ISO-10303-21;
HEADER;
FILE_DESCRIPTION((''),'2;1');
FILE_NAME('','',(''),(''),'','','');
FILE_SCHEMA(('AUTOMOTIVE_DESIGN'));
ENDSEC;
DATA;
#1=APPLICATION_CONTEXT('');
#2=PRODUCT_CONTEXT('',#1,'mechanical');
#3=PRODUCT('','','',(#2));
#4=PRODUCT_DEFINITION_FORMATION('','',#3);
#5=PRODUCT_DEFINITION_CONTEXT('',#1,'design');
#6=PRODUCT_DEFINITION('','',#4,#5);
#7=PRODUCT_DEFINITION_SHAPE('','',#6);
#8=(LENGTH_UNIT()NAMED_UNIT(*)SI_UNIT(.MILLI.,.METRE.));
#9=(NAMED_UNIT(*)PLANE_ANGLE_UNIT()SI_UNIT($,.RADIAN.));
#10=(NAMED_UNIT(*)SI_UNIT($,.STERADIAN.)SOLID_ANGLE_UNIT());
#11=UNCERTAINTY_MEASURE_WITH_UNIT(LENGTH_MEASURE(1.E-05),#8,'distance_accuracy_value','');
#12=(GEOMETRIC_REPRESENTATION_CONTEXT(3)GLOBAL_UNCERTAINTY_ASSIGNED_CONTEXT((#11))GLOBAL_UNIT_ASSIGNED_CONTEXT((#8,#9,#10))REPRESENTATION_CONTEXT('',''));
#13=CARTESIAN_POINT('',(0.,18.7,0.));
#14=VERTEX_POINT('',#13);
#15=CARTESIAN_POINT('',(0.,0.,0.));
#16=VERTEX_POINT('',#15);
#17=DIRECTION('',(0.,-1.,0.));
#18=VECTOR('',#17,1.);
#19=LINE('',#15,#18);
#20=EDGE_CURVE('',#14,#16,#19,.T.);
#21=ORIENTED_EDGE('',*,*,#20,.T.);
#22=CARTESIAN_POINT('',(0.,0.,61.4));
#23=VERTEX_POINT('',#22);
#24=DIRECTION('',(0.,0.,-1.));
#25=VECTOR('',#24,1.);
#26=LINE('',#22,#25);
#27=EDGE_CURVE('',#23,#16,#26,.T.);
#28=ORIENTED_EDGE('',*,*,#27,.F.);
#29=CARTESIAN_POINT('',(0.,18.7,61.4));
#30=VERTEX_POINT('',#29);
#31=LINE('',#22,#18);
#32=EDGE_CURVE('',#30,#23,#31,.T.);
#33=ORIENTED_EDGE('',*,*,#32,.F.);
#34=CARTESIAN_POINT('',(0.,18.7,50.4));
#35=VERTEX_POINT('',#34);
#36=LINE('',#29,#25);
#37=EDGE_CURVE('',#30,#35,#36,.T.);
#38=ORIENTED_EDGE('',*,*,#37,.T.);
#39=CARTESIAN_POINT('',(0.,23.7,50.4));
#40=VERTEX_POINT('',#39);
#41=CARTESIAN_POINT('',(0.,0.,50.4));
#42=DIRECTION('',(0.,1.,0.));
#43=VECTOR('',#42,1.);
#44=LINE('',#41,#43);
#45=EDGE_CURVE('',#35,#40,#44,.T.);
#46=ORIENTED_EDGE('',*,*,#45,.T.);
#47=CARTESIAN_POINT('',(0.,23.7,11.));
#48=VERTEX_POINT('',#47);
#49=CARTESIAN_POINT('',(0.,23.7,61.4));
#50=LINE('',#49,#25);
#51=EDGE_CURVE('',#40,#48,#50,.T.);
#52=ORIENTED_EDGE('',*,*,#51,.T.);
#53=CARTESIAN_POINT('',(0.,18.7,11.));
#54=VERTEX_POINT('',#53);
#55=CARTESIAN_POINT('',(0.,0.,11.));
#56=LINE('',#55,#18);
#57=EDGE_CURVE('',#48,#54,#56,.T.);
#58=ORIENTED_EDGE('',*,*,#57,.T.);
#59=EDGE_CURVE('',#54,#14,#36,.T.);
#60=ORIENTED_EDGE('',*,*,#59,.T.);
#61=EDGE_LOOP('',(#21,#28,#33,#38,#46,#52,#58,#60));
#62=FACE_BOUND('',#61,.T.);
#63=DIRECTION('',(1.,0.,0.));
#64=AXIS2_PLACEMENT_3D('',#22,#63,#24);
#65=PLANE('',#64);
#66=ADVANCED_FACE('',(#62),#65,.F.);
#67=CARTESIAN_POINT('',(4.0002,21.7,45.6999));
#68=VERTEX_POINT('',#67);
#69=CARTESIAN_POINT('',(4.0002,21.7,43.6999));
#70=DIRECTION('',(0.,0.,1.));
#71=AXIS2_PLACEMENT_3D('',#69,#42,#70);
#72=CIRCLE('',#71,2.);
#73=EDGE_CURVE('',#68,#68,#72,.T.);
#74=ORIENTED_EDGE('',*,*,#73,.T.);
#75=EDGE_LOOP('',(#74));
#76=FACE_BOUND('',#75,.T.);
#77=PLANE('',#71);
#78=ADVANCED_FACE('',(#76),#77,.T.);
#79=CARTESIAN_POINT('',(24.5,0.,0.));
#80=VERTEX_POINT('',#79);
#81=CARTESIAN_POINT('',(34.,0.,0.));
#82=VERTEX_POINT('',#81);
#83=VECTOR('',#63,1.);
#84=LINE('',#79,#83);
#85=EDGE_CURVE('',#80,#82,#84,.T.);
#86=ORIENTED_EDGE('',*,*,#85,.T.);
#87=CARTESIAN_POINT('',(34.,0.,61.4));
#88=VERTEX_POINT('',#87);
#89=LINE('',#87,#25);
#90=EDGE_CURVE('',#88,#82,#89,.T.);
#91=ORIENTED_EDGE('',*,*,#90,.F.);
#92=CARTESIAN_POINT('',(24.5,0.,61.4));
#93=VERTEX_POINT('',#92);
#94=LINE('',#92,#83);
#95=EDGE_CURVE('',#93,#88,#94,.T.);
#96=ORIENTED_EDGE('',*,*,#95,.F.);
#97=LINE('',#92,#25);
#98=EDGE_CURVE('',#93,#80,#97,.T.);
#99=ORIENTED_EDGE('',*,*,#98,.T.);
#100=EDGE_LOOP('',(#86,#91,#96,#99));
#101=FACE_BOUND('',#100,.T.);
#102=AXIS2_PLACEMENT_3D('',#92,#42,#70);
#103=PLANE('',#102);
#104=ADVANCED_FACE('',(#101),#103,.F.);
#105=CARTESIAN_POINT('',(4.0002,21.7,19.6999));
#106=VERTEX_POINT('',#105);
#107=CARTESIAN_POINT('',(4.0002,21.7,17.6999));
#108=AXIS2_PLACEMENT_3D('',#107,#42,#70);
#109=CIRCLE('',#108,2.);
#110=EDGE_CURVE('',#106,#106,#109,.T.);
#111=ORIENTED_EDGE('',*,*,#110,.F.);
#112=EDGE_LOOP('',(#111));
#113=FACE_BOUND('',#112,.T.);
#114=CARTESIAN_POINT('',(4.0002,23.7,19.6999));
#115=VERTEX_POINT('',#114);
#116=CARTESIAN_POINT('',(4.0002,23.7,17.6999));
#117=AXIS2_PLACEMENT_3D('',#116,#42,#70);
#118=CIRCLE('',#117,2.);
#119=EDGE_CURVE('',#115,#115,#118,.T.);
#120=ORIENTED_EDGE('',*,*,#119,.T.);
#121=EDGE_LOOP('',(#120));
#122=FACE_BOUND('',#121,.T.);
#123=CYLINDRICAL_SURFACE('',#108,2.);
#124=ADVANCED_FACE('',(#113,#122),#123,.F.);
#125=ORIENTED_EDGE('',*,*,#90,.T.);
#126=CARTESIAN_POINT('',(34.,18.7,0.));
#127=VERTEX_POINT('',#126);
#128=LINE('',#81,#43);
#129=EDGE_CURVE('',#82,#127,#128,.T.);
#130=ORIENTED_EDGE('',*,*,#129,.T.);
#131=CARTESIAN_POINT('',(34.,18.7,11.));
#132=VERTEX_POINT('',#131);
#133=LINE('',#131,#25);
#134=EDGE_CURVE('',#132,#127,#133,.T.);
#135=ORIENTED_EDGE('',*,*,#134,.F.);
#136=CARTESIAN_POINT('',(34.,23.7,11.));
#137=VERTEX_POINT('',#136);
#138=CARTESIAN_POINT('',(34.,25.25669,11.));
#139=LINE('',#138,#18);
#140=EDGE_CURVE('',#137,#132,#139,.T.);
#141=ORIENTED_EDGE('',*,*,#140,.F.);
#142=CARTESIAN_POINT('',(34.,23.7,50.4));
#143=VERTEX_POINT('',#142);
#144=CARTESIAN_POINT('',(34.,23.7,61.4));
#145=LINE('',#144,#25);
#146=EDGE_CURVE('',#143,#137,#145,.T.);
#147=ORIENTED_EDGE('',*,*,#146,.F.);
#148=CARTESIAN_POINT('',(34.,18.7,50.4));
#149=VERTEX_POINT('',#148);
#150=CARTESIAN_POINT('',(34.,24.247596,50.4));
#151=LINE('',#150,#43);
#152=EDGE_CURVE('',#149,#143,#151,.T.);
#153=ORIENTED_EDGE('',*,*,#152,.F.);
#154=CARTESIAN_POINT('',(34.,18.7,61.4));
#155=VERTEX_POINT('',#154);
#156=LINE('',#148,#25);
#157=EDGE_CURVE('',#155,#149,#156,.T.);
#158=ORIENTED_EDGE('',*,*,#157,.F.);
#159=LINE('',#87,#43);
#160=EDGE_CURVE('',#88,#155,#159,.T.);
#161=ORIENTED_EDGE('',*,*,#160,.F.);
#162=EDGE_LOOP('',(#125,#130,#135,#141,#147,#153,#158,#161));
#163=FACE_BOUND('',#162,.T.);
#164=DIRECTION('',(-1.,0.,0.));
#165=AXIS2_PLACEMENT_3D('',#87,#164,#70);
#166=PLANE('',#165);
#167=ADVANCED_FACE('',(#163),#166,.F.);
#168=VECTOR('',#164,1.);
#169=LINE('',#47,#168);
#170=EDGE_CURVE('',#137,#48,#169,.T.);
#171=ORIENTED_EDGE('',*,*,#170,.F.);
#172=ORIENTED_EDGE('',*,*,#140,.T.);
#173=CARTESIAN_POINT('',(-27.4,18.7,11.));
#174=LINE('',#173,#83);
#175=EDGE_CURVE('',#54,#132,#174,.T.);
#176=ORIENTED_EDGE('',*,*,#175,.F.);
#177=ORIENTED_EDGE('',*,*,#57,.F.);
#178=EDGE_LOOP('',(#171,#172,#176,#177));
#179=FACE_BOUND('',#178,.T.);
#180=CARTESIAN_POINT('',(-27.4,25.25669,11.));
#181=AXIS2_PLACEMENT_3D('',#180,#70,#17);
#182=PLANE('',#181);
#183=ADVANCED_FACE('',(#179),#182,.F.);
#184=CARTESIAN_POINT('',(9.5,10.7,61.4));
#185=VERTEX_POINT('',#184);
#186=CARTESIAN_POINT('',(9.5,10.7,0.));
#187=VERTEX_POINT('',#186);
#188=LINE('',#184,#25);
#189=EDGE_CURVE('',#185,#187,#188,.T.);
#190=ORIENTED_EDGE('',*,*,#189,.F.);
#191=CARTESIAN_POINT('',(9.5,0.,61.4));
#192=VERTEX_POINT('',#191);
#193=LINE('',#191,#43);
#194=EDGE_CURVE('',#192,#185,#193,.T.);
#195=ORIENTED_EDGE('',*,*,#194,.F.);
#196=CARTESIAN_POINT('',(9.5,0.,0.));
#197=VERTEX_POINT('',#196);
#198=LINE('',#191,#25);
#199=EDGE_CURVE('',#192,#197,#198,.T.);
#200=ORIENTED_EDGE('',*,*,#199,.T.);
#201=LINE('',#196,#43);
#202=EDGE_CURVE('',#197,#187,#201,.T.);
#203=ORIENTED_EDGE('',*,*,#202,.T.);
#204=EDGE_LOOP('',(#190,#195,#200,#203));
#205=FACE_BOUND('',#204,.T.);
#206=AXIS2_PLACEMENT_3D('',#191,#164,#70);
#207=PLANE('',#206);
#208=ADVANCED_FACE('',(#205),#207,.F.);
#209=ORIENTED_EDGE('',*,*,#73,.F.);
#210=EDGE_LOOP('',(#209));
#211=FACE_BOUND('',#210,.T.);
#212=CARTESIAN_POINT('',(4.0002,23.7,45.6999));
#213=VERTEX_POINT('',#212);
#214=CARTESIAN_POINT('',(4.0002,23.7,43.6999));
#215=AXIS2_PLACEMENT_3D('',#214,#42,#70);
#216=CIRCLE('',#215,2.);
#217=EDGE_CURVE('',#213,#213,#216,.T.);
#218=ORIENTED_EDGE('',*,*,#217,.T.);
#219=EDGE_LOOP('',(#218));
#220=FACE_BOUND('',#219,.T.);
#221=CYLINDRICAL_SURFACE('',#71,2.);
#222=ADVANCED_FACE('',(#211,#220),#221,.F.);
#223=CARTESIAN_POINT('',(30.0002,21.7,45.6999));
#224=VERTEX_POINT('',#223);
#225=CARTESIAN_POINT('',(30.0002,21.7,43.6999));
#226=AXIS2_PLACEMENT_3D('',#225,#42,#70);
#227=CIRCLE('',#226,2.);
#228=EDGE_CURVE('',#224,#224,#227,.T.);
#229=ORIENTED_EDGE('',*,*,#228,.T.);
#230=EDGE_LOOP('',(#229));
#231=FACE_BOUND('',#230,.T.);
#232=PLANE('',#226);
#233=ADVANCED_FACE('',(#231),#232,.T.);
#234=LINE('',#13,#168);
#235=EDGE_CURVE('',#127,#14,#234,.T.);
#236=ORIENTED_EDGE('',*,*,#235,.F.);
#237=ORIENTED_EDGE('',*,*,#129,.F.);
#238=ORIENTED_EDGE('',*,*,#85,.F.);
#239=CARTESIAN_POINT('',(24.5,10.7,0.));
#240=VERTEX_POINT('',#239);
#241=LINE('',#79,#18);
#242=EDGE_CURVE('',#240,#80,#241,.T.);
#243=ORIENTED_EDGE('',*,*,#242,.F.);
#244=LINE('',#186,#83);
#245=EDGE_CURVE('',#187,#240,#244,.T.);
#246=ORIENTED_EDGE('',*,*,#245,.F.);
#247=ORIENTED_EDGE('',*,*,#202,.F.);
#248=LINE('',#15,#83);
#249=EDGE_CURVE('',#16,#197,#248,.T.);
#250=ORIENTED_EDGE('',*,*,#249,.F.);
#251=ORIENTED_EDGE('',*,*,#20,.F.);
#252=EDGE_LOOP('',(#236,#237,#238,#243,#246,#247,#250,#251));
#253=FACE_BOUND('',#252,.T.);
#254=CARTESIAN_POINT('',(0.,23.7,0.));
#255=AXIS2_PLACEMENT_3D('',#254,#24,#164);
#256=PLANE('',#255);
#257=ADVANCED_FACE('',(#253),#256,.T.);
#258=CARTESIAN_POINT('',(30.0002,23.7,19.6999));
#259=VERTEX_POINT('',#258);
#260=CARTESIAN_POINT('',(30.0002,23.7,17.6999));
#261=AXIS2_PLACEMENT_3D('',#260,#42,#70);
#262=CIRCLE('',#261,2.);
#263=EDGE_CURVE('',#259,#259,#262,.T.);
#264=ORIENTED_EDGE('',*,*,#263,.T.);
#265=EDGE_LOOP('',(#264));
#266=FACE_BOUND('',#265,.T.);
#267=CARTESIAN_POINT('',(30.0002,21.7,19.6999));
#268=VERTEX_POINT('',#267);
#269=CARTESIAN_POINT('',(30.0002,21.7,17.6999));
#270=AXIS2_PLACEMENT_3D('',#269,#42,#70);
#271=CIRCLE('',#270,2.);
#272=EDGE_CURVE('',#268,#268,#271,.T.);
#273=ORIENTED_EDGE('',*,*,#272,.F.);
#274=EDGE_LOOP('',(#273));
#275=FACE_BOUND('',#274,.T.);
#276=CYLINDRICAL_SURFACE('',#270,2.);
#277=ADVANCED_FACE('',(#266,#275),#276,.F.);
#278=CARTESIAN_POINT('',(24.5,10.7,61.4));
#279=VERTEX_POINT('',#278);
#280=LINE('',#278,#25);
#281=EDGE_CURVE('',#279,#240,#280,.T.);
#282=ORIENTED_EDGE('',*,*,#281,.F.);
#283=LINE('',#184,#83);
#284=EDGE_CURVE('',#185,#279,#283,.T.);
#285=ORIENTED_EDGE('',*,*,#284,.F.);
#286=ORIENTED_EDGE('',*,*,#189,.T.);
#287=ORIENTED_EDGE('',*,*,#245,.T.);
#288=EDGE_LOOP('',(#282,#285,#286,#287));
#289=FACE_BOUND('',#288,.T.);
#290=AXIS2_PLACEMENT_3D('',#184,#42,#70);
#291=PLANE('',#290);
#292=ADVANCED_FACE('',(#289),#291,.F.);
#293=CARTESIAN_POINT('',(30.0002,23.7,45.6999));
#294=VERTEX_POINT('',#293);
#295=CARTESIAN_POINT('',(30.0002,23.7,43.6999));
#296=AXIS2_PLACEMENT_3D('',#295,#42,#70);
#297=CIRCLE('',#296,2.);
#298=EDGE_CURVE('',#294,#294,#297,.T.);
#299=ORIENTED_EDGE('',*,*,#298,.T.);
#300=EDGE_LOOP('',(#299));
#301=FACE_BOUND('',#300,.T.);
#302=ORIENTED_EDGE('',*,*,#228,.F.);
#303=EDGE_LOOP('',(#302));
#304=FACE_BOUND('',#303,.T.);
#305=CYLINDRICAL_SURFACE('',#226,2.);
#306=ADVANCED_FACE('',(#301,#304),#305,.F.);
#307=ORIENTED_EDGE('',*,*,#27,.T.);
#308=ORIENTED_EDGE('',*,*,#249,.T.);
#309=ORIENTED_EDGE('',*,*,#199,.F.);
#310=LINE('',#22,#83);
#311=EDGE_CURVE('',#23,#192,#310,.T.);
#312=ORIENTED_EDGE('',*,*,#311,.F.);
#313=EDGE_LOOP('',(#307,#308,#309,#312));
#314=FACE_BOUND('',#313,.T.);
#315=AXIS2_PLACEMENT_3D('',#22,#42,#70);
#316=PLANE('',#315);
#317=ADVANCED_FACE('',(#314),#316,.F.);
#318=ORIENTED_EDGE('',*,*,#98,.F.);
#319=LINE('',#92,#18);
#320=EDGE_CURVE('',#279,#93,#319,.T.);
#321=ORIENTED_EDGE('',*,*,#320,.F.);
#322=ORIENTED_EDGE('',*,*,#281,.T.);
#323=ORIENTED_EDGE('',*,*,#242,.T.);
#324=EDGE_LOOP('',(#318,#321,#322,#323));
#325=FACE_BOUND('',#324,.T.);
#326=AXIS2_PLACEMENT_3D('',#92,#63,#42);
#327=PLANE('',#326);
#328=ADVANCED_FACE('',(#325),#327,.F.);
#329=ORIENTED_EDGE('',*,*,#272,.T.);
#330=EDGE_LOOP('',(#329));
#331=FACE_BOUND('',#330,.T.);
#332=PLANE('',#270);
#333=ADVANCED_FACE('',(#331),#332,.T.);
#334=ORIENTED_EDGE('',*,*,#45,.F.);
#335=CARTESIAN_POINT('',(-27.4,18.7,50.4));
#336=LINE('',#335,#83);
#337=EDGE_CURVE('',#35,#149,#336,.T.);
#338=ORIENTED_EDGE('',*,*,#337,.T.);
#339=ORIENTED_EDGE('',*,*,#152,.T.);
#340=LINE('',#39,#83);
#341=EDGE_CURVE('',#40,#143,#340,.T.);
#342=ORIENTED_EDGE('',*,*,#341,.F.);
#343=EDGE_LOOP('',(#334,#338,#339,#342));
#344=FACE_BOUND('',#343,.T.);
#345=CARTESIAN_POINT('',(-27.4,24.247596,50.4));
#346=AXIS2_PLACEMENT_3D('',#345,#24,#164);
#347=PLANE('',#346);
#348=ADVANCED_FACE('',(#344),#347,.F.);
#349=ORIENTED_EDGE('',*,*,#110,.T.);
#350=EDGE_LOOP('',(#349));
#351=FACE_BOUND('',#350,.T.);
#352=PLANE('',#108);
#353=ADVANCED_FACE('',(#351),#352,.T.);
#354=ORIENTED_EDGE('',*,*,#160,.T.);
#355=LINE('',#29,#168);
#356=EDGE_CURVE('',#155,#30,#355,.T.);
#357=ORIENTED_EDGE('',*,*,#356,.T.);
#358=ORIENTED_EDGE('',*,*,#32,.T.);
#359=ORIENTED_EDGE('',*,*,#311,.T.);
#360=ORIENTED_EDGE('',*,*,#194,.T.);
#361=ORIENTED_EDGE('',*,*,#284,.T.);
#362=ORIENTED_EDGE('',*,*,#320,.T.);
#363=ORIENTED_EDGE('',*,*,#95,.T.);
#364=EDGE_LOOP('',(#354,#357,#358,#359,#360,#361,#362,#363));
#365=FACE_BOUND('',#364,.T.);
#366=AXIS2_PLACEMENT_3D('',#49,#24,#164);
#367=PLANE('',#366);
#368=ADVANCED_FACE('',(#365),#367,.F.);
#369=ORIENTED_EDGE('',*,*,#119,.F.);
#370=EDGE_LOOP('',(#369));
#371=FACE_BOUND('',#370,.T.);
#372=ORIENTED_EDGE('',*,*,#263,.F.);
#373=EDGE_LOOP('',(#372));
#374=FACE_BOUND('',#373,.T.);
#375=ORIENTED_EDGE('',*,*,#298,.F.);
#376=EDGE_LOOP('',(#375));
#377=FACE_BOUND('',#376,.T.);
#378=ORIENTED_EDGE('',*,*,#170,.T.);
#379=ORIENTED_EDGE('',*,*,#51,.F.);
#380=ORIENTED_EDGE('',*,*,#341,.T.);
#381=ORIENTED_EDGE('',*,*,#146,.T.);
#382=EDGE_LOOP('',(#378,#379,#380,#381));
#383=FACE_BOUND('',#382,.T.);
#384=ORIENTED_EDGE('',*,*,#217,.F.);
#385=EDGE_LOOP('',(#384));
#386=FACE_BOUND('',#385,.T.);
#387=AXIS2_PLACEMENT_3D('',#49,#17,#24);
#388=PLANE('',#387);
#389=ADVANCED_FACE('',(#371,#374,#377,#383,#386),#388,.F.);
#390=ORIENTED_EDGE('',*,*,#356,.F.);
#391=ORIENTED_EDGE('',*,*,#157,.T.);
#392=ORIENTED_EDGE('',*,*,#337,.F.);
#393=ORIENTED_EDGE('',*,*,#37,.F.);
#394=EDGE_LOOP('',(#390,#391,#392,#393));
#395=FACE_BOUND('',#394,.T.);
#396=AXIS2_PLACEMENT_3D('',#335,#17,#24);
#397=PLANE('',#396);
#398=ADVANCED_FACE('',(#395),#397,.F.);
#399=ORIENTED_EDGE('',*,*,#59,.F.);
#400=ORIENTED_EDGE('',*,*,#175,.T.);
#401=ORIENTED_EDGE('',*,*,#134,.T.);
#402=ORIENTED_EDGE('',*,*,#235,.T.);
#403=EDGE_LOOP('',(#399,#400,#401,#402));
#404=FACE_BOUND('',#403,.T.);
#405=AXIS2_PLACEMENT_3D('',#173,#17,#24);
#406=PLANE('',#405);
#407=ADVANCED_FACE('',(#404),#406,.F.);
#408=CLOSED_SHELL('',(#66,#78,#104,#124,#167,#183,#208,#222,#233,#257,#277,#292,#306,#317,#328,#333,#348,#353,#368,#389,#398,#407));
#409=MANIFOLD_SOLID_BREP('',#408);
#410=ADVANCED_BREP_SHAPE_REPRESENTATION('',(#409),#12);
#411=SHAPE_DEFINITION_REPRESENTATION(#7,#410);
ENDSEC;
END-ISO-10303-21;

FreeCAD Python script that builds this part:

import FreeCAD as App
import Part
import Sketcher

V = App.Vector
Q = App.Units.Quantity


def add_polygon(sketch, points):
    """Adds a closed chain of lines whose ends are joined by coincident constraints."""
    first, n = sketch.GeometryCount, len(points)
    for a, b in zip(points, points[1:] + points[:1]):
        sketch.addGeometry(Part.LineSegment(App.Vector(*a, 0), App.Vector(*b, 0)), False)
    for i in range(n):
        sketch.addConstraint(Sketcher.Constraint("Coincident", first + i, 2, first + (i + 1) % n, 1))

doc = App.newDocument("Part")
body = doc.addObject("PartDesign::Body", "Body")

# Sketch on XY plane
sketch1 = body.newObject("Sketcher::SketchObject", "Sketch")
sketch1.AttachmentSupport = (doc.getObject("XY_Plane"), [""])
sketch1.MapMode = "FlatFace"
add_polygon(sketch1, [(24.5, 0), (34, 0), (34, 23.7), (0, 23.7), (0, 0), (9.5, 0), (9.5, 10.7), (24.5, 10.7)])  # lines 0-7
sketch1.addConstraint([
    Sketcher.Constraint("Horizontal", 0),
    Sketcher.Constraint("Vertical", 1),
    Sketcher.Constraint("Horizontal", 2),
    Sketcher.Constraint("Vertical", 3),
    Sketcher.Constraint("Horizontal", 4),
    Sketcher.Constraint("Vertical", 5),
    Sketcher.Constraint("Horizontal", 6),
    Sketcher.Constraint("Vertical", 7),
    Sketcher.Constraint("Coincident", 3, 2, -1, 1),
    Sketcher.Constraint("PointOnObject", 0, 2, -1),
    Sketcher.Constraint("Equal", 0, 4),
    Sketcher.Constraint("DistanceX", 2, 2, 2, 1, Q("34 mm")),
    Sketcher.Constraint("DistanceX", 6, 1, 6, 2, Q("15 mm")),
    Sketcher.Constraint("DistanceY", 1, 1, 1, 2, Q("23.7 mm")),
    Sketcher.Constraint("DistanceY", 5, 1, 5, 2, Q("10.7 mm")),
])
pad1 = body.newObject("PartDesign::Pad", "Pad")
pad1.Profile = sketch1
pad1.Length = 61.4

# Sketch on YZ plane
sketch2 = body.newObject("Sketcher::SketchObject", "Sketch001")
sketch2.AttachmentSupport = (doc.getObject("YZ_Plane"), [""])
sketch2.MapMode = "FlatFace"
sketch2.AttachmentOffset = App.Placement(V(0, 0, 34), App.Rotation())
add_polygon(sketch2, [(24.247596, 68.363644), (18.7, 68.363644), (18.7, 50.4), (24.247596, 50.4)])  # lines 0-3
add_polygon(sketch2, [(25.25669, 11), (18.7, 11), (18.7, -11.810436), (25.25669, -11.810436)])  # lines 4-7
sketch2.addConstraint([
    Sketcher.Constraint("Horizontal", 0),
    Sketcher.Constraint("Vertical", 1),
    Sketcher.Constraint("Horizontal", 2),
    Sketcher.Constraint("Vertical", 3),
    Sketcher.Constraint("Horizontal", 4),
    Sketcher.Constraint("Vertical", 5),
    Sketcher.Constraint("Horizontal", 6),
    Sketcher.Constraint("Vertical", 7),
    Sketcher.Constraint("Vertical", 1, 2, 4, 2),
    Sketcher.Constraint("DistanceY", -1, 1, 4, 2, Q("11 mm")),
    Sketcher.Constraint("DistanceX", -1, 1, 0, 2, Q("18.7 mm")),
    Sketcher.Constraint("DistanceY", -1, 1, 1, 2, Q("50.4 mm")),
    Sketcher.Constraint("DistanceX", 4, 2, 4, 1, Q("6.55669 mm")),
    Sketcher.Constraint("DistanceX", 0, 2, 0, 1, Q("5.547596 mm")),
    Sketcher.Constraint("DistanceY", 1, 2, 1, 1, Q("17.963644 mm")),
    Sketcher.Constraint("DistanceY", 5, 2, 5, 1, Q("22.810436 mm")),
])
pocket1 = body.newObject("PartDesign::Pocket", "Pocket")
pocket1.Profile = sketch2
pocket1.Length = 61.4

# Sketch on XZ plane
sketch3 = body.newObject("Sketcher::SketchObject", "Sketch002")
sketch3.AttachmentSupport = (doc.getObject("XZ_Plane"), [""])
sketch3.MapMode = "FlatFace"
sketch3.AttachmentOffset = App.Placement(V(0, 0, -23.7), App.Rotation())
sketch3.addGeometry([
    Part.Circle(V(4.0002, 17.6999, 0), V(0, 0, 1), 2),
    Part.Circle(V(30.0002, 17.6999, 0), V(0, 0, 1), 2),
    Part.Circle(V(4.0002, 43.6999, 0), V(0, 0, 1), 2),
    Part.Circle(V(30.0002, 43.6999, 0), V(0, 0, 1), 2),
], False)
sketch3.addConstraint([
    Sketcher.Constraint("Equal", 0, 1),
    Sketcher.Constraint("Equal", 1, 2),
    Sketcher.Constraint("Equal", 2, 3),
    Sketcher.Constraint("Horizontal", 0, 3, 1, 3),
    Sketcher.Constraint("Horizontal", 2, 3, 3, 3),
    Sketcher.Constraint("Vertical", 0, 3, 2, 3),
    Sketcher.Constraint("Vertical", 1, 3, 3, 3),
    Sketcher.Constraint("Diameter", 0, Q("4 mm")),
    Sketcher.Constraint("DistanceX", 0, 3, 1, 3, Q("26 mm")),
    Sketcher.Constraint("DistanceY", 0, 3, 2, 3, Q("26 mm")),
    Sketcher.Constraint("DistanceX", -1, 1, 0, 3, Q("4.0002 mm")),
    Sketcher.Constraint("DistanceY", -1, 1, 0, 3, Q("17.6999 mm")),
])
pocket2 = body.newObject("PartDesign::Pocket", "Pocket001")
pocket2.Profile = sketch3
pocket2.Length = 2
pocket2.Reversed = True

doc.recompute()
